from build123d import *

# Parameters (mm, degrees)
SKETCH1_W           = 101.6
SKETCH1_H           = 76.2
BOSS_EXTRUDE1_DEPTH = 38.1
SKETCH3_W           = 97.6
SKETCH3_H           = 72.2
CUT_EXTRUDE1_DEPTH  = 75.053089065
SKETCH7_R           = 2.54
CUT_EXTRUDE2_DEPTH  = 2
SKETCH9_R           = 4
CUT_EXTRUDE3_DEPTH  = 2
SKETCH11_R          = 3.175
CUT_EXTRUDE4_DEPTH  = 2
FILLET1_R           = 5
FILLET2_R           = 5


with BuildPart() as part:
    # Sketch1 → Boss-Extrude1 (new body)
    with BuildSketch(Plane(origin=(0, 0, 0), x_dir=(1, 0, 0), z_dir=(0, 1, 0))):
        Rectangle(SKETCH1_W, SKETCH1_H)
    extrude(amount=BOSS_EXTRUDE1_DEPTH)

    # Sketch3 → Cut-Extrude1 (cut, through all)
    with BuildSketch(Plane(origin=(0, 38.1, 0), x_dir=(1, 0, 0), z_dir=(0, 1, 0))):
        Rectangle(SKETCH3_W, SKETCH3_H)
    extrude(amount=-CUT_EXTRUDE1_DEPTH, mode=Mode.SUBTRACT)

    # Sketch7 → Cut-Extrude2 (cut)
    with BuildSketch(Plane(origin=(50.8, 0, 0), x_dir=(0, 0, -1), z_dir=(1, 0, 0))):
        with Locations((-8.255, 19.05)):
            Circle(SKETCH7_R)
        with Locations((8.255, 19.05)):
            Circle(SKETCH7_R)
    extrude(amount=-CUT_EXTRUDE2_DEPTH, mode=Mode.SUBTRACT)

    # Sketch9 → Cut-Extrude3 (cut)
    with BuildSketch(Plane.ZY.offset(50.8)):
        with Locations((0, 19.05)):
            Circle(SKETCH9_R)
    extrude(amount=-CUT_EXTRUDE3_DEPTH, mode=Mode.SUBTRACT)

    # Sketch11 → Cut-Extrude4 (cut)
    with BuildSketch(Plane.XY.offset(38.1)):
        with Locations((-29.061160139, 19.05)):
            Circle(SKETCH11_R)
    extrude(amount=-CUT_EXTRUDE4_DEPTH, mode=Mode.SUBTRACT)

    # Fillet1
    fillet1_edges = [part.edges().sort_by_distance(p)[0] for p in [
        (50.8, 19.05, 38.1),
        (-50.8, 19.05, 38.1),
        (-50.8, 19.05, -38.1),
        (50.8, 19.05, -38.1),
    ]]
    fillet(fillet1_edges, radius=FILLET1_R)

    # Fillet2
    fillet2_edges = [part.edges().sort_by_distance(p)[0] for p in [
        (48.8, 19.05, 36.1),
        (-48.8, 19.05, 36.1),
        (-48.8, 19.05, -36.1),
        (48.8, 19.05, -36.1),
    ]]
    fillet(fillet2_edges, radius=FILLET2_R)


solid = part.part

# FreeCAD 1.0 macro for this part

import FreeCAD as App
import Part
import Sketcher

V = App.Vector
Q = App.Units.Quantity


def edges_at(feature, points):
    """Names of the edges that pass closest to the given points."""
    edges = feature.Shape.Edges
    near = lambda p: min(range(len(edges)), key=lambda i: edges[i].distToShape(Part.Vertex(*p))[0])
    return sorted({f"Edge{near(p) + 1}" for p in points})


def add_polygon(sketch, points):
    """Adds a closed chain of lines whose ends are joined by coincident constraints."""
    first, n = sketch.GeometryCount, len(points)
    for a, b in zip(points, points[1:] + points[:1]):
        sketch.addGeometry(Part.LineSegment(App.Vector(*a, 0), App.Vector(*b, 0)), False)
    for i in range(n):
        sketch.addConstraint(Sketcher.Constraint("Coincident", first + i, 2, first + (i + 1) % n, 1))

doc = App.newDocument("Part")
body = doc.addObject("PartDesign::Body", "Body")

# Sketch on XZ plane
sketch1 = body.newObject("Sketcher::SketchObject", "Sketch")
sketch1.AttachmentSupport = (doc.getObject("XZ_Plane"), [""])
sketch1.MapMode = "FlatFace"
add_polygon(sketch1, [(-50.8, -38.1), (-50.8, 38.1), (50.8, 38.1), (50.8, -38.1)])  # lines 0-3
sketch1.addConstraint([
    Sketcher.Constraint("Vertical", 0),
    Sketcher.Constraint("Horizontal", 1),
    Sketcher.Constraint("Vertical", 2),
    Sketcher.Constraint("Horizontal", 3),
    Sketcher.Constraint("Symmetric", 0, 2, 2, 2, -1, 1),
    Sketcher.Constraint("DistanceX", 1, 1, 1, 2, Q("101.6 mm")),
    Sketcher.Constraint("DistanceY", 0, 1, 0, 2, Q("76.2 mm")),
])
pad1 = body.newObject("PartDesign::Pad", "Pad")
pad1.Profile = sketch1
pad1.Length = 38.1
pad1.Reversed = True

# Sketch on XZ plane
sketch2 = body.newObject("Sketcher::SketchObject", "Sketch001")
sketch2.AttachmentSupport = (doc.getObject("XZ_Plane"), [""])
sketch2.MapMode = "FlatFace"
sketch2.AttachmentOffset = App.Placement(V(0, 0, -38.1), App.Rotation())
add_polygon(sketch2, [(-48.8, -36.1), (-48.8, 36.1), (48.8, 36.1), (48.8, -36.1)])  # lines 0-3
sketch2.addConstraint([
    Sketcher.Constraint("Vertical", 0),
    Sketcher.Constraint("Horizontal", 1),
    Sketcher.Constraint("Vertical", 2),
    Sketcher.Constraint("Horizontal", 3),
    Sketcher.Constraint("Symmetric", 0, 2, 2, 2, -1, 1),
    Sketcher.Constraint("DistanceX", 1, 1, 1, 2, Q("97.6 mm")),
    Sketcher.Constraint("DistanceY", 0, 1, 0, 2, Q("72.2 mm")),
])
pocket1 = body.newObject("PartDesign::Pocket", "Pocket")
pocket1.Profile = sketch2
pocket1.Type = "ThroughAll"
pocket1.Reversed = True

# Sketch on YZ plane
sketch3 = body.newObject("Sketcher::SketchObject", "Sketch002")
sketch3.AttachmentSupport = (doc.getObject("YZ_Plane"), [""])
sketch3.MapMode = "FlatFace"
sketch3.AttachmentOffset = App.Placement(V(0, 0, 50.8), App.Rotation())
sketch3.addGeometry([
    Part.Circle(V(19.05, 8.255, 0), V(0, 0, 1), 2.54),
    Part.Circle(V(19.05, -8.255, 0), V(0, 0, 1), 2.54),
], False)
sketch3.addConstraint([
    Sketcher.Constraint("Equal", 0, 1),
    Sketcher.Constraint("Symmetric", 0, 3, 1, 3, -1),
    Sketcher.Constraint("Diameter", 0, Q("5.08 mm")),
    Sketcher.Constraint("DistanceX", -1, 1, 0, 3, Q("19.05 mm")),
    Sketcher.Constraint("DistanceY", 1, 3, 0, 3, Q("16.51 mm")),
])
pocket2 = body.newObject("PartDesign::Pocket", "Pocket001")
pocket2.Profile = sketch3
pocket2.Length = 2

# Sketch on YZ plane
sketch4 = body.newObject("Sketcher::SketchObject", "Sketch003")
sketch4.AttachmentSupport = (doc.getObject("YZ_Plane"), [""])
sketch4.MapMode = "FlatFace"
sketch4.AttachmentOffset = App.Placement(V(0, 0, -50.8), App.Rotation())
sketch4.addGeometry(Part.Circle(V(19.05, 0, 0), V(0, 0, 1), 4), False)
sketch4.addConstraint([
    Sketcher.Constraint("PointOnObject", 0, 3, -1),
    Sketcher.Constraint("Diameter", 0, Q("8 mm")),
    Sketcher.Constraint("DistanceX", -1, 1, 0, 3, Q("19.05 mm")),
])
pocket3 = body.newObject("PartDesign::Pocket", "Pocket002")
pocket3.Profile = sketch4
pocket3.Length = 2
pocket3.Reversed = True

# Sketch on XY plane
sketch5 = body.newObject("Sketcher::SketchObject", "Sketch004")
sketch5.AttachmentSupport = (doc.getObject("XY_Plane"), [""])
sketch5.MapMode = "FlatFace"
sketch5.AttachmentOffset = App.Placement(V(0, 0, 38.1), App.Rotation())
sketch5.addGeometry(Part.Circle(V(-29.06116, 19.05, 0), V(0, 0, 1), 3.175), False)
sketch5.addConstraint([
    Sketcher.Constraint("Diameter", 0, Q("6.35 mm")),
    Sketcher.Constraint("DistanceY", -1, 1, 0, 3, Q("19.05 mm")),
    Sketcher.Constraint("DistanceX", 0, 3, -1, 1, Q("29.06116 mm")),
])
pocket4 = body.newObject("PartDesign::Pocket", "Pocket003")
pocket4.Profile = sketch5
pocket4.Length = 2
doc.recompute()

fillet = body.newObject("PartDesign::Fillet", "Fillet")
fillet.Base = (pocket4, edges_at(pocket4, [
    (50.8, 19.05, 38.1),
    (-50.8, 19.05, 38.1),
    (-50.8, 19.05, -38.1),
    (50.8, 19.05, -38.1),
]))
fillet.Radius = 5
doc.recompute()

fillet2 = body.newObject("PartDesign::Fillet", "Fillet001")
fillet2.Base = (fillet, edges_at(fillet, [
    (48.8, 19.05, 36.1),
    (-48.8, 19.05, 36.1),
    (-48.8, 19.05, -36.1),
    (48.8, 19.05, -36.1),
]))
fillet2.Radius = 5

doc.recompute()
